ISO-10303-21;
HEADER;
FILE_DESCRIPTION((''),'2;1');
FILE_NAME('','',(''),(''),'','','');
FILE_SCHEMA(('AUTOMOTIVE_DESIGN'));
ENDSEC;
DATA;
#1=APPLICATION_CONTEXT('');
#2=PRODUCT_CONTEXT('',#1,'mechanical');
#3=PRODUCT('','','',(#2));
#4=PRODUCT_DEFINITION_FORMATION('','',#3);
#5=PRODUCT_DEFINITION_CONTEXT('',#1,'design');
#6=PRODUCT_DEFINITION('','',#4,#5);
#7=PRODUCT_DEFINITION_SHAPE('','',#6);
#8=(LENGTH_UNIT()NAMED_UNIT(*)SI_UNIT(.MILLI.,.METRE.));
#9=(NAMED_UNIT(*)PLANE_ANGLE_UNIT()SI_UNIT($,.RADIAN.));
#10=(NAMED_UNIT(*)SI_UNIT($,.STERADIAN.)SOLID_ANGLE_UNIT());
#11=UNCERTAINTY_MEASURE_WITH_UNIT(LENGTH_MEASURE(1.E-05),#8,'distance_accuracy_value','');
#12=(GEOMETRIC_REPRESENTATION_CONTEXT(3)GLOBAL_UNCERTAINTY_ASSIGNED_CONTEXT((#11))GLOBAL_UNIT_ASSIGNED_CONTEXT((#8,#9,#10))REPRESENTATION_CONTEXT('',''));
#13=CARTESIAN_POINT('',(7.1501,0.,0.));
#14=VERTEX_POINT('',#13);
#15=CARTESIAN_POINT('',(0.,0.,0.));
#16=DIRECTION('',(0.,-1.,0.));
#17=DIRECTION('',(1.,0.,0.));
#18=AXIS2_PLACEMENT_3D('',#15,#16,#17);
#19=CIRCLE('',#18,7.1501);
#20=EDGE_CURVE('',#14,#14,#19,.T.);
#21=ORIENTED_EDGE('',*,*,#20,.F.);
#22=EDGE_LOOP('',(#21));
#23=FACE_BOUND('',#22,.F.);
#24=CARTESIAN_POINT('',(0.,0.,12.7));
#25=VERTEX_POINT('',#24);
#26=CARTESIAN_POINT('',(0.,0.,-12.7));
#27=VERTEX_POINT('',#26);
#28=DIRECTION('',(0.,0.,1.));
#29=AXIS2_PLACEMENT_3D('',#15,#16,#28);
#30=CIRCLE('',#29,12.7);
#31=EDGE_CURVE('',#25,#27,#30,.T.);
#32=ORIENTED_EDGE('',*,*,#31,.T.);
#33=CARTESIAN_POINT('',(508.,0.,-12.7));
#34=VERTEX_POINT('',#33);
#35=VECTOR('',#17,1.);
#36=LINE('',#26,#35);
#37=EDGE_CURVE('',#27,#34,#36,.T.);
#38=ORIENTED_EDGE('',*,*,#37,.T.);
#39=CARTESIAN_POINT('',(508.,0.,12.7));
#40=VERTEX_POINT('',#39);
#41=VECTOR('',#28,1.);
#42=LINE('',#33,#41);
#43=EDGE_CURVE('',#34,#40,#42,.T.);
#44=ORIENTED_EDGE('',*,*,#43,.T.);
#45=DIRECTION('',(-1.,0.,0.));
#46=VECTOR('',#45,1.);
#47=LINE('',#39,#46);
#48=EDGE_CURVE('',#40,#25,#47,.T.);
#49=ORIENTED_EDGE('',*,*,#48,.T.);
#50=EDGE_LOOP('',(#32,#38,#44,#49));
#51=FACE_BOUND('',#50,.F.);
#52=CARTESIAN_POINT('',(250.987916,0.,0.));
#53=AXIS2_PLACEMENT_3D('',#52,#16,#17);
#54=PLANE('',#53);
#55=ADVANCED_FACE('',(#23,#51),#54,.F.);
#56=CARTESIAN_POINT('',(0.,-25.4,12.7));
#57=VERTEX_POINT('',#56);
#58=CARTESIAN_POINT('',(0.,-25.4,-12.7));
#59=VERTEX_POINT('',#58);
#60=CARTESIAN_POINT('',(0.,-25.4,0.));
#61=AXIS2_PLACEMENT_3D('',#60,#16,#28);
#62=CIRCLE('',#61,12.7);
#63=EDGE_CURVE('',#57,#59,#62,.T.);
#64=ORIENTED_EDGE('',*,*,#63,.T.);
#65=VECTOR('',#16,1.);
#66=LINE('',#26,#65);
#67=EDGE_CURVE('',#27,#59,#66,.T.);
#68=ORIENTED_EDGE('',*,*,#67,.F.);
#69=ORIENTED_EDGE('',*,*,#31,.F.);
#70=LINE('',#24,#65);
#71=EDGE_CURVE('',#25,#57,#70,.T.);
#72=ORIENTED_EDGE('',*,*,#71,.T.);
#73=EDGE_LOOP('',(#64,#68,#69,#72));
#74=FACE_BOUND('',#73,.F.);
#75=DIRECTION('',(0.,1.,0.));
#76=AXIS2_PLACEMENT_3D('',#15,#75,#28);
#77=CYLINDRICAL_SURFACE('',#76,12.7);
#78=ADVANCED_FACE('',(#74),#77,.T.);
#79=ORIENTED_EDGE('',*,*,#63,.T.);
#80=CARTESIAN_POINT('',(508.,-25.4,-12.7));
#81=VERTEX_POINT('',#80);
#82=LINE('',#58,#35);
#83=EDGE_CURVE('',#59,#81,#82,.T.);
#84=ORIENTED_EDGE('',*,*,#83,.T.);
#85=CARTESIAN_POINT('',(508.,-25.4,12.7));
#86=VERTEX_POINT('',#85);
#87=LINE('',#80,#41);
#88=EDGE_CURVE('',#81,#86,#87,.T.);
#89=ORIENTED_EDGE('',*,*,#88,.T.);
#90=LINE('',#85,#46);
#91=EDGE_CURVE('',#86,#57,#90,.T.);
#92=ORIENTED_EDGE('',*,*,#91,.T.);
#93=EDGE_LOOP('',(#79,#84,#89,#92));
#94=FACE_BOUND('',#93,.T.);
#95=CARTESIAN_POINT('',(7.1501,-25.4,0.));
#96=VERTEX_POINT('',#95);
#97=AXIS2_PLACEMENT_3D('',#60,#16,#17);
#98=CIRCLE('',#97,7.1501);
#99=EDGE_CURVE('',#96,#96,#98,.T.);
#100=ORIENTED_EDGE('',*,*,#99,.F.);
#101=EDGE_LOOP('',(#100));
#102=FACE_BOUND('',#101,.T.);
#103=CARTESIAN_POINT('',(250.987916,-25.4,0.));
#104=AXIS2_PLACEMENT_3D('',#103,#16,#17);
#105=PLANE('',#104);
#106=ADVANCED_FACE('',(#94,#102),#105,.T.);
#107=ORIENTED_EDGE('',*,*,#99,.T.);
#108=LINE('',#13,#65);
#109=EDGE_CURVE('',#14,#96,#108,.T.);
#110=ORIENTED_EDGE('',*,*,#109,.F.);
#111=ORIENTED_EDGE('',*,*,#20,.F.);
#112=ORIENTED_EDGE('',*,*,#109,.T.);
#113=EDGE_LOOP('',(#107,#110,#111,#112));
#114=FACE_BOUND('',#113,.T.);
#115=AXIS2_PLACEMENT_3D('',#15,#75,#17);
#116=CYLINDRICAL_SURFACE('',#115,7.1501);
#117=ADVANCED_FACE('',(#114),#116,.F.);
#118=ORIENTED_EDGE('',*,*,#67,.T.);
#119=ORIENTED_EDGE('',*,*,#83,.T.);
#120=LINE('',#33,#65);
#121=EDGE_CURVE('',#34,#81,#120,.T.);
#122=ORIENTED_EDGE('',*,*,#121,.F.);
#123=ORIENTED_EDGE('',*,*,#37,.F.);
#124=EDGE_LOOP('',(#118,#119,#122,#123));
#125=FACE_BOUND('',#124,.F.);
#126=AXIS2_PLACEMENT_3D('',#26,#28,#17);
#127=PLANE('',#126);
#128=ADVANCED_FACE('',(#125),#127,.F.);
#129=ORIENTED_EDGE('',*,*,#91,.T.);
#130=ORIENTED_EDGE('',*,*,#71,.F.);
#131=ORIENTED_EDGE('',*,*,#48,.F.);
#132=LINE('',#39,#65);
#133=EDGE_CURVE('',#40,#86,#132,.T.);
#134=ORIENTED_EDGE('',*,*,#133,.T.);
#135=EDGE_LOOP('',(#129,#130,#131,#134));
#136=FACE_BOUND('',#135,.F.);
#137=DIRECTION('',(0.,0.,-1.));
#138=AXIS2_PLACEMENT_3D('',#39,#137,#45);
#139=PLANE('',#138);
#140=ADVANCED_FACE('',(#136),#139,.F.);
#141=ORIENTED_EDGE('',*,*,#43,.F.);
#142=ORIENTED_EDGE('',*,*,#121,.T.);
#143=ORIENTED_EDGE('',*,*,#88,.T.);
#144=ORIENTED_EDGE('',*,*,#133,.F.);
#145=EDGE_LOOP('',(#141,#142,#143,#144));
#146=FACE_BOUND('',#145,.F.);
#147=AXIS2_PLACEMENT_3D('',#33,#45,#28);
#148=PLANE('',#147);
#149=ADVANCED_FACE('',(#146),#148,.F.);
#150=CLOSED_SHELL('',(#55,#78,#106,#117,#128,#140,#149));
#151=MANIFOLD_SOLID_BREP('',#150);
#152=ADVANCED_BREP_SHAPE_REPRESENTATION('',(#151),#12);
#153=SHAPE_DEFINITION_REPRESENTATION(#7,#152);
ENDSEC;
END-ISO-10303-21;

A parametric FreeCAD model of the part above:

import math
import FreeCAD as App
import Part
import Sketcher
from FreeCAD import Vector
Q = App.Units.Quantity

doc = App.newDocument("Part")
body = doc.addObject("PartDesign::Body", "Body")

# Sketch on XZ plane
sketch1 = body.newObject("Sketcher::SketchObject", "Sketch")
sketch1.AttachmentSupport = (doc.getObject("XZ_Plane"), [""])
sketch1.MapMode = "FlatFace"
sketch1.addGeometry([
    Part.LineSegment(Vector(0, -13, 0), Vector(508, -13, 0)),  # 0
    Part.LineSegment(Vector(508, -13, 0), Vector(508, 13, 0)),  # 1
    Part.LineSegment(Vector(508, 13, 0), Vector(0, 13, 0)),  # 2
    Part.ArcOfCircle(Part.Circle(Vector(0, 0, 0), Vector(0, 0, 1), 13), math.radians(90), math.radians(270)),  # 3
    Part.Circle(Vector(0, 0, 0), Vector(0, 0, 1), 7),  # 4
], False)
sketch1.addConstraint([
    Sketcher.Constraint("Coincident", 0, 2, 1, 1),
    Sketcher.Constraint("Coincident", 1, 2, 2, 1),
    Sketcher.Constraint("Tangent", 2, 2, 3, 1),
    Sketcher.Constraint("Tangent", 3, 2, 0, 1),
    Sketcher.Constraint("Horizontal", 0),
    Sketcher.Constraint("Vertical", 1),
    Sketcher.Constraint("Horizontal", 2),
    Sketcher.Constraint("Coincident", 3, 3, -1, 1),
    Sketcher.Constraint("Coincident", 4, 3, -1, 1),
    Sketcher.Constraint("Radius", 3, Q("0.5 in")),
    Sketcher.Constraint("DistanceX", 0, 1, 0, 2, Q("20 in")),
    Sketcher.Constraint("Diameter", 4, Q("0.563 in")),
])
pad1 = body.newObject("PartDesign::Pad", "Pad")
pad1.Profile = sketch1
pad1.Length = Q("1 in")

doc.recompute()
